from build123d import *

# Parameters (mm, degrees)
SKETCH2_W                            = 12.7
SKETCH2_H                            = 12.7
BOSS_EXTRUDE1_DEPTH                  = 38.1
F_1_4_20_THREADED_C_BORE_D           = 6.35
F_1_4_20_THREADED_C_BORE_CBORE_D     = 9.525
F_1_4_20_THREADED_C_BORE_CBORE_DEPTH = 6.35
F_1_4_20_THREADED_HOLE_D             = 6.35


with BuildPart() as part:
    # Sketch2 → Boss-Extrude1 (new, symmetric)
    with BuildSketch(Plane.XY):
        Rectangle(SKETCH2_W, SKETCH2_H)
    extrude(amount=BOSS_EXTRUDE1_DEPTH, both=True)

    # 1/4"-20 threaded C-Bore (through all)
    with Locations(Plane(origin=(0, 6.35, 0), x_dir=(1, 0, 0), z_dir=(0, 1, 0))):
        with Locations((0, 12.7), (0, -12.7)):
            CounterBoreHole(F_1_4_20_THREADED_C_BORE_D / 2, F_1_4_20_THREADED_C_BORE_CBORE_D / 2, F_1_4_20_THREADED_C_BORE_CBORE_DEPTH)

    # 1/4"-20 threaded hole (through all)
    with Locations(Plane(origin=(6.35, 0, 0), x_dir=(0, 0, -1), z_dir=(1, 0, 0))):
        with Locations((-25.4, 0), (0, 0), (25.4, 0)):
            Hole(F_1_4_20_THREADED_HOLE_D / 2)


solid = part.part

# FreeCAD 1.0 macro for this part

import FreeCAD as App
import Part
import Sketcher

V = App.Vector
Q = App.Units.Quantity

doc = App.newDocument("Part")
body = doc.addObject("PartDesign::Body", "Body")

# Sketch on XY plane
sketch1 = body.newObject("Sketcher::SketchObject", "Sketch")
sketch1.AttachmentSupport = (doc.getObject("XY_Plane"), [""])
sketch1.MapMode = "FlatFace"
sketch1.addGeometry([
    Part.LineSegment(V(-6.35, 6.35, 0), V(-6.35, -6.35, 0)),
    Part.LineSegment(V(-6.35, -6.35, 0), V(6.35, -6.35, 0)),
    Part.LineSegment(V(6.35, -6.35, 0), V(6.35, 6.35, 0)),
    Part.LineSegment(V(6.35, 6.35, 0), V(-6.35, 6.35, 0)),
], False)
sketch1.addConstraint([
    Sketcher.Constraint("Coincident", 0, 2, 1, 1),
    Sketcher.Constraint("Coincident", 1, 2, 2, 1),
    Sketcher.Constraint("Coincident", 2, 2, 3, 1),
    Sketcher.Constraint("Coincident", 3, 2, 0, 1),
    Sketcher.Constraint("Vertical", 0),
    Sketcher.Constraint("Horizontal", 1),
    Sketcher.Constraint("Vertical", 2),
    Sketcher.Constraint("Horizontal", 3),
    Sketcher.Constraint("Symmetric", 0, 2, 2, 2, -1, 1),
    Sketcher.Constraint("Equal", 3, 0),
    Sketcher.Constraint("DistanceX", 1, 1, 1, 2, Q("0.5 in")),
])
pad1 = body.newObject("PartDesign::Pad", "Pad")
pad1.Profile = sketch1
pad1.Length = Q("3 in")
pad1.Midplane = True

# Sketch on XZ plane
sketch2 = body.newObject("Sketcher::SketchObject", "Sketch001")
sketch2.AttachmentSupport = (doc.getObject("XZ_Plane"), [""])
sketch2.MapMode = "FlatFace"
sketch2.AttachmentOffset = App.Placement(V(0, 0, -0.25 * 25.4), App.Rotation())
sketch2.addGeometry([
    Part.Circle(V(0, -12.7, 0), V(0, 0, 1), 3.175),
    Part.Circle(V(0, 12.7, 0), V(0, 0, 1), 3.175),
], False)
sketch2.addConstraint([
    Sketcher.Constraint("Equal", 0, 1),
    Sketcher.Constraint("Symmetric", 0, 3, 1, 3, -1, 1),
    Sketcher.Constraint("PointOnObject", 0, 3, -2),
    Sketcher.Constraint("Diameter", 0, Q("0.25 in")),
    Sketcher.Constraint("DistanceY", 0, 3, 1, 3, Q("1 in")),
])
doc.recompute()
hole = body.newObject("PartDesign::Hole", "Hole")
hole.Profile = sketch2
hole.ThreadType = "None"
hole.Diameter = Q("0.25 in")
hole.DepthType = "ThroughAll"
hole.HoleCutType = "Counterbore"
hole.HoleCutDiameter = Q("0.375 in")
hole.HoleCutDepth = Q("0.25 in")
hole.Reversed = True

# Sketch on YZ plane
sketch3 = body.newObject("Sketcher::SketchObject", "Sketch002")
sketch3.AttachmentSupport = (doc.getObject("YZ_Plane"), [""])
sketch3.MapMode = "FlatFace"
sketch3.AttachmentOffset = App.Placement(V(0, 0, 0.25 * 25.4), App.Rotation())
sketch3.addGeometry([
    Part.Circle(V(0, 25.4, 0), V(0, 0, 1), 3.175),
    Part.Circle(V(0, 0, 0), V(0, 0, 1), 3.175),
    Part.Circle(V(0, -25.4, 0), V(0, 0, 1), 3.175),
], False)
sketch3.addConstraint([
    Sketcher.Constraint("Coincident", 1, 3, -1, 1),
    Sketcher.Constraint("Equal", 0, 1),
    Sketcher.Constraint("Equal", 1, 2),
    Sketcher.Constraint("Symmetric", 0, 3, 2, 3, -1, 1),
    Sketcher.Constraint("PointOnObject", 0, 3, -2),
    Sketcher.Constraint("Diameter", 0, Q("0.25 in")),
    Sketcher.Constraint("DistanceY", -1, 1, 0, 3, Q("1 in")),
])
doc.recompute()
hole2 = body.newObject("PartDesign::Hole", "Hole001")
hole2.Profile = sketch3
hole2.ThreadType = "None"
hole2.Diameter = Q("0.25 in")
hole2.DepthType = "ThroughAll"

doc.recompute()
